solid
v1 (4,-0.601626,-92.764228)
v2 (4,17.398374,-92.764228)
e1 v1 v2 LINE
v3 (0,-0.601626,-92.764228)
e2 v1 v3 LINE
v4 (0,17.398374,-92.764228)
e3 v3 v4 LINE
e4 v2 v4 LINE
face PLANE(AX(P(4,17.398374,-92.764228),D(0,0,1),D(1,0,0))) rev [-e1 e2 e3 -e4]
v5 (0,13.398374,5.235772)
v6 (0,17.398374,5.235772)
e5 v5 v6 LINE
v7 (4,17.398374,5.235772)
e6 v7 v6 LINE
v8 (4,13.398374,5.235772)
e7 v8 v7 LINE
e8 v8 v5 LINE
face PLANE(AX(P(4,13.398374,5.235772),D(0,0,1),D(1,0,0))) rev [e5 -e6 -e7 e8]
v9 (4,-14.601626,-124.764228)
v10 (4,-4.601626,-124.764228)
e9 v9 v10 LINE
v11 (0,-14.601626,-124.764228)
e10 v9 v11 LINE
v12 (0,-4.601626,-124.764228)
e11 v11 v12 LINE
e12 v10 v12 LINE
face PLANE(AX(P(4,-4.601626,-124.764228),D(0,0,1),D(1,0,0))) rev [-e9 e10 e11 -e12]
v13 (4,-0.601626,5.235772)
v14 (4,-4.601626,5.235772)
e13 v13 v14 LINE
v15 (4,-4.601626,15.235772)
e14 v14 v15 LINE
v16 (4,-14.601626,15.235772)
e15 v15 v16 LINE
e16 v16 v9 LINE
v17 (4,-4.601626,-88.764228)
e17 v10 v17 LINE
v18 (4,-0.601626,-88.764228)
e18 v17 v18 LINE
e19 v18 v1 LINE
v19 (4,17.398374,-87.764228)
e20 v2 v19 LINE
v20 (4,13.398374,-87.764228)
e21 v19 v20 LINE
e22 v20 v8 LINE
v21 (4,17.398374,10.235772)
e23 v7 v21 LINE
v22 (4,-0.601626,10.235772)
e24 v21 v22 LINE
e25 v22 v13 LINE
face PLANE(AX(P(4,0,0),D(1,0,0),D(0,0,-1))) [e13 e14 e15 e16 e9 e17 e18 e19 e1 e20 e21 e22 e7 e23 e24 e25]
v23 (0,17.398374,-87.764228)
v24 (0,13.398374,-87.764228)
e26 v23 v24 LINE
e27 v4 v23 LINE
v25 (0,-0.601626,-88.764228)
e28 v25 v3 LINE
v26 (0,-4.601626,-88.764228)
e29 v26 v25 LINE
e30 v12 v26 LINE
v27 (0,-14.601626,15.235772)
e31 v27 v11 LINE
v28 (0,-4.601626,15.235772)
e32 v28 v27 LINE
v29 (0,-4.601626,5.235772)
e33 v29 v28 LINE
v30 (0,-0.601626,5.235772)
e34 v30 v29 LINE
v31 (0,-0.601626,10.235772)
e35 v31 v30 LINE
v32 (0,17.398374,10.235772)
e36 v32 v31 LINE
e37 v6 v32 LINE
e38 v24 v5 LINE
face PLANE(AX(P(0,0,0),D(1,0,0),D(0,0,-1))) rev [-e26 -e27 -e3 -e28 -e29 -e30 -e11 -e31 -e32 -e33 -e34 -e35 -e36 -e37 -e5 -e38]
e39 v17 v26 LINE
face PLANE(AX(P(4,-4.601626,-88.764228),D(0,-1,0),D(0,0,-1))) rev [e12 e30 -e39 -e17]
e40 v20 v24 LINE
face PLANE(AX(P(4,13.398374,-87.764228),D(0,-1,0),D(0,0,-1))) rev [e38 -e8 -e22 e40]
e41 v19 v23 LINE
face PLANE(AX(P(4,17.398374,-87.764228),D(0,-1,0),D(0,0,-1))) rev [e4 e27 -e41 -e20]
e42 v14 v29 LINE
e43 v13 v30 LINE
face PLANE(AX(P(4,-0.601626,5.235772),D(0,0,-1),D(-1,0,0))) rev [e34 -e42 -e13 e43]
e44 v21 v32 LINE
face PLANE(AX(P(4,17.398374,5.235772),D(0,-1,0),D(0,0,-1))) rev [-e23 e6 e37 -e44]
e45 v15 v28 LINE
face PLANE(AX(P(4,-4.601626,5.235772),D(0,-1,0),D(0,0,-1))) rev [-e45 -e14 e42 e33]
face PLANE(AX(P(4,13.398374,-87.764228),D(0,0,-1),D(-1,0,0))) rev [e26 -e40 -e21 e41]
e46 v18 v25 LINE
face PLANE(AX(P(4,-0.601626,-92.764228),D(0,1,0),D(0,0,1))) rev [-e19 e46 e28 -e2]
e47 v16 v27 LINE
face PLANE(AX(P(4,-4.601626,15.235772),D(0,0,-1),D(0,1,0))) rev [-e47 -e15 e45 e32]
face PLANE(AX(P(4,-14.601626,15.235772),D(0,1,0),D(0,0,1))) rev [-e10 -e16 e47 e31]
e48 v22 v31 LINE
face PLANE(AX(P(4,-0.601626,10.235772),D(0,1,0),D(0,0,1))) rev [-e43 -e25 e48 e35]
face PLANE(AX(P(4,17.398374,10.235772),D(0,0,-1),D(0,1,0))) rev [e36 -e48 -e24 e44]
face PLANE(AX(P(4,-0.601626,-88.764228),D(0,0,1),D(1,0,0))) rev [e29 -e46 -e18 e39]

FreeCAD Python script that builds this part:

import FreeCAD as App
import Part
import Sketcher

V = App.Vector
Q = App.Units.Quantity


def add_polygon(sketch, points):
    """Adds a closed chain of lines whose ends are joined by coincident constraints."""
    first, n = sketch.GeometryCount, len(points)
    for a, b in zip(points, points[1:] + points[:1]):
        sketch.addGeometry(Part.LineSegment(App.Vector(*a, 0), App.Vector(*b, 0)), False)
    for i in range(n):
        sketch.addConstraint(Sketcher.Constraint("Coincident", first + i, 2, first + (i + 1) % n, 1))

doc = App.newDocument("Part")
body = doc.addObject("PartDesign::Body", "Body")

# Sketch on YZ plane
sketch1 = doc.addObject("Sketcher::SketchObject", "Sketch")
body.addObject(sketch1)
sketch1.AttachmentSupport = (doc.YZ_Plane, [""])
sketch1.MapMode = "FlatFace"
add_polygon(sketch1, [(17.398374, 10.235772), (-0.601626, 10.235772), (-0.601626, 5.235772), (-4.601626, 5.235772), (-4.601626, 15.235772), (-14.601626, 15.235772), (-14.601626, -124.764228), (-4.601626, -124.764228), (-4.601626, -88.764228), (-0.601626, -88.764228), (-0.601626, -92.764228), (17.398374, -92.764228), (17.398374, -87.764228), (13.398374, -87.764228), (13.398374, 5.235772), (17.398374, 5.235772)])  # lines 0-15
sketch1.addConstraint([
    Sketcher.Constraint("Horizontal", 0),
    Sketcher.Constraint("Vertical", 1),
    Sketcher.Constraint("Horizontal", 2),
    Sketcher.Constraint("Vertical", 3),
    Sketcher.Constraint("Horizontal", 4),
    Sketcher.Constraint("Vertical", 5),
    Sketcher.Constraint("Horizontal", 6),
    Sketcher.Constraint("Vertical", 7),
    Sketcher.Constraint("Horizontal", 8),
    Sketcher.Constraint("Vertical", 9),
    Sketcher.Constraint("Horizontal", 10),
    Sketcher.Constraint("Vertical", 11),
    Sketcher.Constraint("Horizontal", 12),
    Sketcher.Constraint("Vertical", 13),
    Sketcher.Constraint("Horizontal", 14),
    Sketcher.Constraint("Vertical", 15),
    Sketcher.Constraint("Horizontal", 2, 2, 13, 2),
    Sketcher.Constraint("Vertical", 3, 2, 6, 2),
    Sketcher.Constraint("Vertical", 1, 2, 8, 2),
    Sketcher.Constraint("Vertical", 11, 2, 14, 2),
    Sketcher.Constraint("Equal", 8, 12),
    Sketcher.Constraint("Equal", 6, 3),
    Sketcher.Constraint("Equal", 14, 9),
    Sketcher.Constraint("Equal", 1, 11),
    Sketcher.Constraint("DistanceX", 0, 2, 0, 1, Q("18 mm")),
    Sketcher.Constraint("DistanceX", 2, 2, 2, 1, Q("4 mm")),
    Sketcher.Constraint("DistanceX", 4, 2, 4, 1, Q("10 mm")),
    Sketcher.Constraint("DistanceY", 1, 2, 1, 1, Q("5 mm")),
    Sketcher.Constraint("DistanceY", 5, 2, 5, 1, Q("140 mm")),
    Sketcher.Constraint("DistanceY", 7, 1, 7, 2, Q("36 mm")),
    Sketcher.Constraint("DistanceX", 0, 2, -1, 1, Q("0.601626 mm")),
    Sketcher.Constraint("DistanceY", -1, 1, 0, 2, Q("10.235772 mm")),
])
pad1 = doc.addObject("PartDesign::Pad", "Pad")
body.addObject(pad1)
pad1.Profile = sketch1
pad1.Length = 4

doc.recompute()
